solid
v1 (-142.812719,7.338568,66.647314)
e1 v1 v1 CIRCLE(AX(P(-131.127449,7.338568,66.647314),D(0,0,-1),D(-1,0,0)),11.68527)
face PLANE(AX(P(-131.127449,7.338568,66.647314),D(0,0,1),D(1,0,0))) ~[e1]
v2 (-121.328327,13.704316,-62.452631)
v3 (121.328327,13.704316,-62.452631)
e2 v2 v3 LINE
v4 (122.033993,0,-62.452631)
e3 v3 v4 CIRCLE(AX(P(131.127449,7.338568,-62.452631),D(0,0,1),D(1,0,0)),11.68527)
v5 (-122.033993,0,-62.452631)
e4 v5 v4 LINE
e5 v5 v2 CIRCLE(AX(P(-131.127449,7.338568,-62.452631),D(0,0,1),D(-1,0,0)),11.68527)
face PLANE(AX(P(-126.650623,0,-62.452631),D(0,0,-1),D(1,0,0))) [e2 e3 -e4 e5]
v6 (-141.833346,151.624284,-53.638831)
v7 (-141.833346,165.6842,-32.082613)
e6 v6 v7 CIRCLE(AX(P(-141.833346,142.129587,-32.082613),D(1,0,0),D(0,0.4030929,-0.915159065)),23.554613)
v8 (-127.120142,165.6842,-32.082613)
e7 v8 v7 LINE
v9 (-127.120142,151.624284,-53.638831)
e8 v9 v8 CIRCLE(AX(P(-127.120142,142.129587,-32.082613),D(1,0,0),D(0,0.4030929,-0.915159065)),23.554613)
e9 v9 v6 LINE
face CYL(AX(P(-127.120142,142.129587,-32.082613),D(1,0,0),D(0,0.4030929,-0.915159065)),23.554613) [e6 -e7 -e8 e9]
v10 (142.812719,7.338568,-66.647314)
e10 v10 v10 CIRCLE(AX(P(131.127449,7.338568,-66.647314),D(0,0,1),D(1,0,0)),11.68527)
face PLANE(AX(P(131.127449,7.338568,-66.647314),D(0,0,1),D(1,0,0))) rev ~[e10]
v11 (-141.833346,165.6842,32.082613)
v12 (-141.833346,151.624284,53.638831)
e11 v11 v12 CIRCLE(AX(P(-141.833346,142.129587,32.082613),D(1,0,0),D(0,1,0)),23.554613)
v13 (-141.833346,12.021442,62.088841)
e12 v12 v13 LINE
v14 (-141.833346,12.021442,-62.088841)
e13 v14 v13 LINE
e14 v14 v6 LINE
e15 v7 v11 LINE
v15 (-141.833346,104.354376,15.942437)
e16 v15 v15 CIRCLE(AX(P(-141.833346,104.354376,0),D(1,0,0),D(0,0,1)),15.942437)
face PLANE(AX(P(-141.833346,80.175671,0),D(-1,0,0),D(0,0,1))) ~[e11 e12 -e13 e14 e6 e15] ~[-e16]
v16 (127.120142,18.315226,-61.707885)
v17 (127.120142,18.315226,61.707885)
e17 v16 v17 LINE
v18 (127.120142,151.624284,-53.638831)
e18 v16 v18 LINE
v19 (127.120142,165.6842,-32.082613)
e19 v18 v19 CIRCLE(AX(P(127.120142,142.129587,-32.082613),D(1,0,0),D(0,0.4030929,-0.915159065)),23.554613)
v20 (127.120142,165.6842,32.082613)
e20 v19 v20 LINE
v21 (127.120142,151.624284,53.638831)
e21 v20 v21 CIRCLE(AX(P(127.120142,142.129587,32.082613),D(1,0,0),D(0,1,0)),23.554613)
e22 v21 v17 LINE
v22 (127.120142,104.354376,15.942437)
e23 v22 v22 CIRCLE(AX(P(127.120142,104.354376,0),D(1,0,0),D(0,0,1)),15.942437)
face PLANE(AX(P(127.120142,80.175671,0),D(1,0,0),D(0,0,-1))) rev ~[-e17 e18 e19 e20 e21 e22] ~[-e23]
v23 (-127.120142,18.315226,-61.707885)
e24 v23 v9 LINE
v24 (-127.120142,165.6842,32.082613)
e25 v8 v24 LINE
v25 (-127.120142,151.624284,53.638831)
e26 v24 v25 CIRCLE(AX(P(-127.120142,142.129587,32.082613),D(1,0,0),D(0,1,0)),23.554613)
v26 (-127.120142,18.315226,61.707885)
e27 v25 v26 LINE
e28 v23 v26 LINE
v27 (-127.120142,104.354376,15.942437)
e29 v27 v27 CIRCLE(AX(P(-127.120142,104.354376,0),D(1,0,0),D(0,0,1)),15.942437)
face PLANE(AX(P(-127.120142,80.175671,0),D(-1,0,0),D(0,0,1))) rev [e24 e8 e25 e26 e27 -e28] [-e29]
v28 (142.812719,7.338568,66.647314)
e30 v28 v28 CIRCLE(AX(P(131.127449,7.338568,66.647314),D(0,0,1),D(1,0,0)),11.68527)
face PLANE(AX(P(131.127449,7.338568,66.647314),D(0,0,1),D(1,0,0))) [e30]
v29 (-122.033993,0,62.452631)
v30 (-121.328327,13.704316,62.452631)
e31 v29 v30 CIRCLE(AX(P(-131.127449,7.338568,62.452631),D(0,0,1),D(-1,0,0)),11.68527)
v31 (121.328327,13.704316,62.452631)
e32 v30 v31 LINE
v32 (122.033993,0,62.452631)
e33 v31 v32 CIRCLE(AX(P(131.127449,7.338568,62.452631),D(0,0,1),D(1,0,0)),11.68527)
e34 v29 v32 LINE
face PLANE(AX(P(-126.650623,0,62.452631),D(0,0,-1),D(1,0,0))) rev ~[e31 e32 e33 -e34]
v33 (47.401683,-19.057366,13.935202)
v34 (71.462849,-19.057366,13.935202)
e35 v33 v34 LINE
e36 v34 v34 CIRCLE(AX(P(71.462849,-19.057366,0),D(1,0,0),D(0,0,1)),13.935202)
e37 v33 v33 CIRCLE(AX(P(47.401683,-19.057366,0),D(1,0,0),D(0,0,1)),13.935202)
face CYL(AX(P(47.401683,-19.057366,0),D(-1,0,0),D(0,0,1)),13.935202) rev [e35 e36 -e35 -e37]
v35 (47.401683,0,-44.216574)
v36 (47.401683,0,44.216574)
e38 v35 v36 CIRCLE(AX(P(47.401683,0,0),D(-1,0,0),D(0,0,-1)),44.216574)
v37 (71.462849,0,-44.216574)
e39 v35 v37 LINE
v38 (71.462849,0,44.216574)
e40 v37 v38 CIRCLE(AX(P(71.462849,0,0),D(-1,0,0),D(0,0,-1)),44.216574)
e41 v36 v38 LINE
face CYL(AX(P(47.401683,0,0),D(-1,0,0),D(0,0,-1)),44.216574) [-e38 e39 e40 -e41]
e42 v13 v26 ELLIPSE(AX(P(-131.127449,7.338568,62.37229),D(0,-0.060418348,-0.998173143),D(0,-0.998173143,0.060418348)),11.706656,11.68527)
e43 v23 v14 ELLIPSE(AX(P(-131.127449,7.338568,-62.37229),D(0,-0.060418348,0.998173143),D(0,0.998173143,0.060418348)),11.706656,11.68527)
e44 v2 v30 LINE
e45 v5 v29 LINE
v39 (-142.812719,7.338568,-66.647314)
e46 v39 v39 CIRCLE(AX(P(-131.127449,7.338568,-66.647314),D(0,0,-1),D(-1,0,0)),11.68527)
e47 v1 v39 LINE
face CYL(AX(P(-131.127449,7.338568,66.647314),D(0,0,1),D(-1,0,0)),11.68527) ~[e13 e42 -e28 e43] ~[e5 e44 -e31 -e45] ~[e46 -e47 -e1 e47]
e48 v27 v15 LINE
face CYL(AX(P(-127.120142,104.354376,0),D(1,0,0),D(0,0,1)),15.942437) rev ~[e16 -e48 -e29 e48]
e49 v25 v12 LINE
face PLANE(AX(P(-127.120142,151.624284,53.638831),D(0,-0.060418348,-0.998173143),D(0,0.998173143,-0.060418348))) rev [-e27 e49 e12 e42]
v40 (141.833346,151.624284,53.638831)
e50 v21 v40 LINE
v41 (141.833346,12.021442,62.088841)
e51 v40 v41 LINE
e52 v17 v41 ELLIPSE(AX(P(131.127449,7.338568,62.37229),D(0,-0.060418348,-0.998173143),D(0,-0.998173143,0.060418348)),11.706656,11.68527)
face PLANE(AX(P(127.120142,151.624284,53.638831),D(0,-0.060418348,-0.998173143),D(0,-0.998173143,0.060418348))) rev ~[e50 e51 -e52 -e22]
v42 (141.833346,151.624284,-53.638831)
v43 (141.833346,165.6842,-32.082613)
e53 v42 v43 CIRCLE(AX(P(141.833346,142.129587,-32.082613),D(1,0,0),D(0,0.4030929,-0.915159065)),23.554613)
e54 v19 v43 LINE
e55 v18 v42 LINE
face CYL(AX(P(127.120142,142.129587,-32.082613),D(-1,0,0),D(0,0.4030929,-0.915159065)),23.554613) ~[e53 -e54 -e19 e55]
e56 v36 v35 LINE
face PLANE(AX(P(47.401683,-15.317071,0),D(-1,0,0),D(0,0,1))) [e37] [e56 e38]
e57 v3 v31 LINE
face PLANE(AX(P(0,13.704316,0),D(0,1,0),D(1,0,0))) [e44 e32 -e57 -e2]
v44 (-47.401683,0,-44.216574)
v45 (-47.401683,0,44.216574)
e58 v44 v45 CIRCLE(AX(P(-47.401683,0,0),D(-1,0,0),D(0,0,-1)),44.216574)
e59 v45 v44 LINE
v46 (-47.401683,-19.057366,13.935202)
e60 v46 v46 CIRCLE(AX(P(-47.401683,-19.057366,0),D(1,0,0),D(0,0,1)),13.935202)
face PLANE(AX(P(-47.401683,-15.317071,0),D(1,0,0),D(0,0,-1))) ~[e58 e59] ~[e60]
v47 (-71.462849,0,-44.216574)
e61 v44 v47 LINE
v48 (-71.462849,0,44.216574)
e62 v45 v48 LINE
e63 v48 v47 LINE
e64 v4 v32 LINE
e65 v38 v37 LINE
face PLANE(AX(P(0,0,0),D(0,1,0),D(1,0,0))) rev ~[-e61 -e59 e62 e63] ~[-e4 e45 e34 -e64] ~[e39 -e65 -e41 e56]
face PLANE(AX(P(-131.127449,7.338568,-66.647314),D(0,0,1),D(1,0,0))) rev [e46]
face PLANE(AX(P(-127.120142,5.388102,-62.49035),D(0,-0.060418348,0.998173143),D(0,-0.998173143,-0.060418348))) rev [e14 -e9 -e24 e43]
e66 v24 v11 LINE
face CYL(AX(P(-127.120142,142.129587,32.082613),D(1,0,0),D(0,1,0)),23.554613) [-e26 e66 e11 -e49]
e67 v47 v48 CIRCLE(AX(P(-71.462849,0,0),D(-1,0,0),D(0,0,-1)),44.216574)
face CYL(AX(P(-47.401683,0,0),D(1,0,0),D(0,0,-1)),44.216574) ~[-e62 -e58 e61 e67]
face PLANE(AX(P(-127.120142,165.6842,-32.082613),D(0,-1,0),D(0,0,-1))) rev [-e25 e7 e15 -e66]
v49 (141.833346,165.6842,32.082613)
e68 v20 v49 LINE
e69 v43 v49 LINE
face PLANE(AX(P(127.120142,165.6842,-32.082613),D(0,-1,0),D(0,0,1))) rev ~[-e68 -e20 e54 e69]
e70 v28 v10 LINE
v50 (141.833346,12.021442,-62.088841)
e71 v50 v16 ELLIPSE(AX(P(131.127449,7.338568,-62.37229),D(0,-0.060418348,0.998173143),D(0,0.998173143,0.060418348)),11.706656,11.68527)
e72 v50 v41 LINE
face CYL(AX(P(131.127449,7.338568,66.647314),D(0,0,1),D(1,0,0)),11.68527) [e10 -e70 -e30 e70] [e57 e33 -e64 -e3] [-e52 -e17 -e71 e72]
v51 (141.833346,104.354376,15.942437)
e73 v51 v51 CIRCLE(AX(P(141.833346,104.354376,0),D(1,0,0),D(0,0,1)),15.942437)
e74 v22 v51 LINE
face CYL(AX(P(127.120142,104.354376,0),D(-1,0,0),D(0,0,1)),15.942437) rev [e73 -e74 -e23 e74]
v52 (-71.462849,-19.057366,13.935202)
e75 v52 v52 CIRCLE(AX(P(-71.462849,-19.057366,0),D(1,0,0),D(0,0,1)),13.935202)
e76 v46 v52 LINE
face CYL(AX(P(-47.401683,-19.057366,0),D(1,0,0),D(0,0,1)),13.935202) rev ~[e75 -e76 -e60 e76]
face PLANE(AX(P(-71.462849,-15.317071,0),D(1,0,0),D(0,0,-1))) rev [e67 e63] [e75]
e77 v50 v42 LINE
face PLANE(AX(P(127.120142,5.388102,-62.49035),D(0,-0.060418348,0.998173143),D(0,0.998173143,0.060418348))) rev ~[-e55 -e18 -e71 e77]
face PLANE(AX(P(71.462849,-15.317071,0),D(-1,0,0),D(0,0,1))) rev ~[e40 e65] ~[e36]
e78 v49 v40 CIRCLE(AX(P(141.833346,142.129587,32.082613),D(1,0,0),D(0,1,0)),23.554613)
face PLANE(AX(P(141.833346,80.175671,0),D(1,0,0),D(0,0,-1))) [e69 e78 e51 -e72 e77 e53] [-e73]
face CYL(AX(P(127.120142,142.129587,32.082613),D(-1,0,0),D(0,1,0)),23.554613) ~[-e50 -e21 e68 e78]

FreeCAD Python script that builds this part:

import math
import FreeCAD as App
import Part
import Sketcher
from FreeCAD import Vector


def add_polygon(sketch, points):
    """Adds a closed chain of lines whose ends are joined by coincident constraints."""
    first, n = sketch.GeometryCount, len(points)
    for a, b in zip(points, points[1:] + points[:1]):
        sketch.addGeometry(Part.LineSegment(App.Vector(*a, 0), App.Vector(*b, 0)), False)
    for i in range(n):
        sketch.addConstraint(Sketcher.Constraint("Coincident", first + i, 2, first + (i + 1) % n, 1))

doc = App.newDocument("Part")
body = doc.addObject("PartDesign::Body", "Body")

# Sketch on XZ plane
sketch1 = doc.addObject("Sketcher::SketchObject", "Sketch")
body.addObject(sketch1)
sketch1.AttachmentSupport = (doc.XZ_Plane, [""])
sketch1.MapMode = "FlatFace"
add_polygon(sketch1, [(-127, -62), (-127, 62), (127, 62), (127, -62)])  # lines 0-3
sketch1.addConstraint([
    Sketcher.Constraint("Vertical", 0),
    Sketcher.Constraint("Horizontal", 1),
    Sketcher.Constraint("Vertical", 2),
    Sketcher.Constraint("Horizontal", 3),
    Sketcher.Constraint("Symmetric", 0, 2, 2, 2, -1, 1),
    Sketcher.Constraint("DistanceY", 0, 1, 0, 2, 124.905262),
    Sketcher.Constraint("DistanceX", 1, 1, 1, 2, 253.301246),
])
pad1 = doc.addObject("PartDesign::Pad", "Pad")
body.addObject(pad1)
pad1.Profile = sketch1
pad1.Length = 13.704316
pad1.Reversed = True

# Sketch on XY plane
sketch2 = doc.addObject("Sketcher::SketchObject", "Sketch001")
body.addObject(sketch2)
sketch2.AttachmentSupport = (doc.XY_Plane, [""])
sketch2.MapMode = "FlatFace"
sketch2.AttachmentOffset = App.Placement(Vector(0, 0, 66.647314), App.Rotation())
sketch2.addGeometry(Part.Circle(Vector(131, 7, 0), Vector(0, 0, 1), 12), False)
sketch2.addConstraint([
    Sketcher.Constraint("Diameter", 0, 23.37054),
    Sketcher.Constraint("DistanceX", -1, 1, 0, 3, 131.127449),
    Sketcher.Constraint("DistanceY", -1, 1, 0, 3, 7.338568),
])
pad2 = doc.addObject("PartDesign::Pad", "Pad001")
body.addObject(pad2)
pad2.Profile = sketch2
pad2.Length = 133.294628
pad2.Reversed = True

# Sketch on YZ plane
sketch3 = doc.addObject("Sketcher::SketchObject", "Sketch002")
body.addObject(sketch3)
sketch3.AttachmentSupport = (doc.YZ_Plane, [""])
sketch3.MapMode = "FlatFace"
sketch3.AttachmentOffset = App.Placement(Vector(0, 0, 47.401683), App.Rotation())
sketch3.addGeometry([
    Part.LineSegment(Vector(0, -44, 0), Vector(0, 44, 0)),
    Part.ArcOfCircle(Part.Circle(Vector(0, 0, 0), Vector(0, 0, 1), 44), math.radians(90), math.radians(270)),
    Part.Circle(Vector(-19, 0, 0), Vector(0, 0, 1), 14),
], False)
sketch3.addConstraint([
    Sketcher.Constraint("Coincident", 0, 1, 1, 2),
    Sketcher.Constraint("Coincident", 1, 1, 0, 2),
    Sketcher.Constraint("Vertical", 0),
    Sketcher.Constraint("Coincident", 1, 3, -1, 1),
    Sketcher.Constraint("PointOnObject", 2, 3, -1),
    Sketcher.Constraint("PointOnObject", 0, 1, -2),
    Sketcher.Constraint("Diameter", 2, 27.870404),
    Sketcher.Constraint("Radius", 1, 44.216574),
    Sketcher.Constraint("DistanceX", 2, 3, -1, 1, 19.057366),
])
pad3 = doc.addObject("PartDesign::Pad", "Pad002")
body.addObject(pad3)
pad3.Profile = sketch3
pad3.Length = 24.061166

# Sketch on YZ plane
sketch4 = doc.addObject("Sketcher::SketchObject", "Sketch003")
body.addObject(sketch4)
sketch4.AttachmentSupport = (doc.YZ_Plane, [""])
sketch4.MapMode = "FlatFace"
sketch4.AttachmentOffset = App.Placement(Vector(0, 0, 127.120142), App.Rotation())
sketch4.addGeometry([
    Part.LineSegment(Vector(5, 62, 0), Vector(5, -62, 0)),  # 0
    Part.LineSegment(Vector(5, -62, 0), Vector(152, -54, 0)),  # 1
    Part.ArcOfCircle(Part.Circle(Vector(142, -32, 0), Vector(0, 0, 1), 24), math.radians(-66), math.radians(0)),  # 2
    Part.LineSegment(Vector(166, -32, 0), Vector(166, 32, 0)),  # 3
    Part.ArcOfCircle(Part.Circle(Vector(142, 32, 0), Vector(0, 0, 1), 24), math.radians(0), math.radians(66)),  # 4
    Part.LineSegment(Vector(152, 54, 0), Vector(5, 62, 0)),  # 5
    Part.Circle(Vector(104, 0, 0), Vector(0, 0, 1), 16),  # 6
], False)
sketch4.addConstraint([
    Sketcher.Constraint("Coincident", 0, 2, 1, 1),
    Sketcher.Constraint("Coincident", 1, 2, 2, 1),
    Sketcher.Constraint("Tangent", 2, 2, 3, 1),
    Sketcher.Constraint("Tangent", 3, 2, 4, 1),
    Sketcher.Constraint("Coincident", 4, 2, 5, 1),
    Sketcher.Constraint("Coincident", 5, 2, 0, 1),
    Sketcher.Constraint("Vertical", 0),
    Sketcher.Constraint("Vertical", 3),
    Sketcher.Constraint("Equal", 2, 4),
    Sketcher.Constraint("Symmetric", 1, 2, 4, 2, -1),
    Sketcher.Constraint("PointOnObject", 6, 3, -1),
    Sketcher.Constraint("Equal", 1, 5),
    Sketcher.Constraint("Diameter", 6, 31.884874),
    Sketcher.Constraint("DistanceY", 0, 2, 0, 1, 124.9807),
    Sketcher.Constraint("Radius", 2, 23.554613),
    Sketcher.Constraint("DistanceX", -1, 1, 2, 2, 165.6842),
    Sketcher.Constraint("DistanceX", 5, 2, 3, 2, 160.296098),
    Sketcher.Constraint("DistanceY", 3, 1, 3, 2, 64.165226),
    Sketcher.Constraint("DistanceY", 1, 2, -1, 1, 53.638831),
    Sketcher.Constraint("DistanceX", 6, 3, 2, 3, 37.775211),
])
pad4 = doc.addObject("PartDesign::Pad", "Pad003")
body.addObject(pad4)
pad4.Profile = sketch4
pad4.Length = 14.713204
doc.recompute()

mirrored = doc.addObject("PartDesign::Mirrored", "Mirrored")
body.addObject(mirrored)
mirrored.Originals = [pad2, pad3, pad4]
mirrored.MirrorPlane = (doc.YZ_Plane, [""])
body.Tip = mirrored

doc.recompute()
